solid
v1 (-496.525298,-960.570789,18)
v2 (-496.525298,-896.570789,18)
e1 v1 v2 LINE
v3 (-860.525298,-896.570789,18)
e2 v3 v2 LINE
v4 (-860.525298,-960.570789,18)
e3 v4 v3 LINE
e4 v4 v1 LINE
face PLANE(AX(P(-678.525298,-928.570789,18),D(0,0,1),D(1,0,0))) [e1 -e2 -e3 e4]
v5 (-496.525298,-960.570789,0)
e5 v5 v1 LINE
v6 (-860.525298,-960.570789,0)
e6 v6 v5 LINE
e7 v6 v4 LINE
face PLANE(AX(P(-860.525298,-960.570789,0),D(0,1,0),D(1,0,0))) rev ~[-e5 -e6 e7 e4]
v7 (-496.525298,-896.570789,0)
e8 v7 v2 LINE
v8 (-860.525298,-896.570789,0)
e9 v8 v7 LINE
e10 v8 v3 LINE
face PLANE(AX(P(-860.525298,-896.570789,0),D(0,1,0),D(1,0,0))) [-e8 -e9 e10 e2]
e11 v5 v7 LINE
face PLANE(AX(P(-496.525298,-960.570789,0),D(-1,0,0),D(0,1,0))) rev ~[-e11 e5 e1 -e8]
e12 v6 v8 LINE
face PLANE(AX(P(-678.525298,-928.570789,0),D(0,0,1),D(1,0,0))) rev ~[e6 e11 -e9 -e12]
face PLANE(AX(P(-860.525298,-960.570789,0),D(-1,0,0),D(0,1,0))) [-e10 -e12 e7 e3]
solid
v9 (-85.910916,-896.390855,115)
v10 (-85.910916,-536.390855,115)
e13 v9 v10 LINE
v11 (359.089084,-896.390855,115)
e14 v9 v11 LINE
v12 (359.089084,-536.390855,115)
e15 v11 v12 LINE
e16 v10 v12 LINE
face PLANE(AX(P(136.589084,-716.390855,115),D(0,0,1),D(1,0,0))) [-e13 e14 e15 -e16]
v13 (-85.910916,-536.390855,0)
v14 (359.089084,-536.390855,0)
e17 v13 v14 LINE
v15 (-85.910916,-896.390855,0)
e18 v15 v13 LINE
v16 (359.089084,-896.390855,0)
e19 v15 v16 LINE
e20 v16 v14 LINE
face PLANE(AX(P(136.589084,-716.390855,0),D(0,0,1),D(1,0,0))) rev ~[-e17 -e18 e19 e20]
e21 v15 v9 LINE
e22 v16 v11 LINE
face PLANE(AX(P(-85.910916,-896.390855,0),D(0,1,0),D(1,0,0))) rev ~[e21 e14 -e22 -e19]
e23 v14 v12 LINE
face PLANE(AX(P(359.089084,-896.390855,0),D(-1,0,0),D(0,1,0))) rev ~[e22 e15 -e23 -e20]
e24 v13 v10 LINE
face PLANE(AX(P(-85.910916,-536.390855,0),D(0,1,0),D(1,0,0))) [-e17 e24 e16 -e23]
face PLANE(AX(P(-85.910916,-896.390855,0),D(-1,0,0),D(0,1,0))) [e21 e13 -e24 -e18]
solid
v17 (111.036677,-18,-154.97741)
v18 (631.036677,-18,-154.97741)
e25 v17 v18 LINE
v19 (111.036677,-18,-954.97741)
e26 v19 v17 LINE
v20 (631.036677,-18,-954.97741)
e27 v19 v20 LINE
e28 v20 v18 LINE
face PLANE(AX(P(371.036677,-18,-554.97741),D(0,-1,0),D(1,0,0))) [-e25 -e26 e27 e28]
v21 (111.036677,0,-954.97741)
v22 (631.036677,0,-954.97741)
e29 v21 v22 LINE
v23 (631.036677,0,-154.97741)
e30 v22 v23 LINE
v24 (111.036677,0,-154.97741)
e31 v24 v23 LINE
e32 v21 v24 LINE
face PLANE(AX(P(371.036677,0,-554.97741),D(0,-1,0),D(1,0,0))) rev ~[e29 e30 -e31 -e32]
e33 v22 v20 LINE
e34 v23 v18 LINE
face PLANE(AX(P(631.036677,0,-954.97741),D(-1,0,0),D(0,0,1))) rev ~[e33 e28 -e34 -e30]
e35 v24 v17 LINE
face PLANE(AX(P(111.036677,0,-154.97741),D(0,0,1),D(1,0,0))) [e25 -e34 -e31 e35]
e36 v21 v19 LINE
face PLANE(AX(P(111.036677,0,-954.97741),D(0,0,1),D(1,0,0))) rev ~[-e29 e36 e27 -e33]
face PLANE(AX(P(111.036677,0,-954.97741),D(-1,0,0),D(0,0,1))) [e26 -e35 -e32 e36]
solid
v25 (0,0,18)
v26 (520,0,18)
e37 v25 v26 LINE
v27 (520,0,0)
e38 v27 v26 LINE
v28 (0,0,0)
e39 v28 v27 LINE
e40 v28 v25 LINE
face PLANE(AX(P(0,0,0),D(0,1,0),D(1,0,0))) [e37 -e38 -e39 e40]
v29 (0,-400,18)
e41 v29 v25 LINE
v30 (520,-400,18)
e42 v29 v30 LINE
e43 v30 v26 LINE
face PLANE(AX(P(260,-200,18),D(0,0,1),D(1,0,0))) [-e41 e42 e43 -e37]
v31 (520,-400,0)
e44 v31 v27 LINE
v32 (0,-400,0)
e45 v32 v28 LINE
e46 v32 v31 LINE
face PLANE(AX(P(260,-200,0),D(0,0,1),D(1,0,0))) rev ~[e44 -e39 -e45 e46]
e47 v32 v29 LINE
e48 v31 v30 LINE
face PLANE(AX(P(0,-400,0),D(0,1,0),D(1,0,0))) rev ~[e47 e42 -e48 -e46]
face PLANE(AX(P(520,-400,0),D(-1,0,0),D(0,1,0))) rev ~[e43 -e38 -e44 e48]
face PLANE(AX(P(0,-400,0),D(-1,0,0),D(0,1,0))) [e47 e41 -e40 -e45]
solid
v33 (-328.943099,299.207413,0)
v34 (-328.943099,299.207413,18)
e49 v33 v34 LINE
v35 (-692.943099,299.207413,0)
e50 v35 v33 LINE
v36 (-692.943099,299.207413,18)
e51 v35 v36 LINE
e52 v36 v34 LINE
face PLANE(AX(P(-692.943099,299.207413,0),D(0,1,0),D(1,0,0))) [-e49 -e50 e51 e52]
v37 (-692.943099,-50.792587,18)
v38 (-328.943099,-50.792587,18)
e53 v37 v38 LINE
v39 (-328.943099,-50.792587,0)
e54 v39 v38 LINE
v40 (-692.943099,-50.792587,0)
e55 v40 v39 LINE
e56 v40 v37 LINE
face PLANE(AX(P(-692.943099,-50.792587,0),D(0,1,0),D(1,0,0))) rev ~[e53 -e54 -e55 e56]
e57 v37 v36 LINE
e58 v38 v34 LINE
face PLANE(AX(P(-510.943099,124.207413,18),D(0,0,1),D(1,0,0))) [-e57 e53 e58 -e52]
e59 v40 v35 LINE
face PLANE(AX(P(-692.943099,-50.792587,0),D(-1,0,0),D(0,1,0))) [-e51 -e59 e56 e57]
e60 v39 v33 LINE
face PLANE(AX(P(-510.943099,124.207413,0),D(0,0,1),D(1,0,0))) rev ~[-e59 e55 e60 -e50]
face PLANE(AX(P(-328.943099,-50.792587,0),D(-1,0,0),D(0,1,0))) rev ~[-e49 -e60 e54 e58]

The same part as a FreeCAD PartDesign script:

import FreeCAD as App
import Part
import Sketcher
Q = App.Units.Quantity


def add_polygon(sketch, points):
    """Adds a closed chain of lines whose ends are joined by coincident constraints."""
    first, n = sketch.GeometryCount, len(points)
    for a, b in zip(points, points[1:] + points[:1]):
        sketch.addGeometry(Part.LineSegment(App.Vector(*a, 0), App.Vector(*b, 0)), False)
    for i in range(n):
        sketch.addConstraint(Sketcher.Constraint("Coincident", first + i, 2, first + (i + 1) % n, 1))

doc = App.newDocument("Part")
body = doc.addObject("PartDesign::Body", "Body")

sketch1 = body.newObject("Sketcher::SketchObject", "Sketch")
sketch1.AttachmentSupport = (doc.getObject("XY_Plane"), [""])
sketch1.MapMode = "FlatFace"
add_polygon(sketch1, [(0, 0), (0, -400), (520, -400), (520, 0)])
sketch1.addConstraint(Sketcher.Constraint("Vertical", 0))
sketch1.addConstraint(Sketcher.Constraint("Horizontal", 1))
sketch1.addConstraint(Sketcher.Constraint("Vertical", 2))
sketch1.addConstraint(Sketcher.Constraint("Horizontal", 3))
sketch1.addConstraint(Sketcher.Constraint("Coincident", 3, 2, -1, 1))
sketch1.addConstraint(Sketcher.Constraint("DistanceX", 1, 1, 1, 2, Q("520 mm")))
sketch1.addConstraint(Sketcher.Constraint("DistanceY", 0, 2, 0, 1, Q("400 mm")))
pad1 = body.newObject("PartDesign::Pad", "Pad")
pad1.Profile = sketch1
pad1.Length = 18
body2 = doc.addObject("PartDesign::Body", "Body001")

sketch2 = body2.newObject("Sketcher::SketchObject", "Sketch001")
sketch2.AttachmentSupport = (doc.getObject("XZ_Plane001"), [""])
sketch2.MapMode = "FlatFace"
add_polygon(sketch2, [(111.036677, -154.97741), (111.036677, -954.97741), (631.036677, -954.97741), (631.036677, -154.97741)])
sketch2.addConstraint(Sketcher.Constraint("Vertical", 0))
sketch2.addConstraint(Sketcher.Constraint("Horizontal", 1))
sketch2.addConstraint(Sketcher.Constraint("Vertical", 2))
sketch2.addConstraint(Sketcher.Constraint("Horizontal", 3))
sketch2.addConstraint(Sketcher.Constraint("DistanceX", 1, 1, 1, 2, Q("520 mm")))
sketch2.addConstraint(Sketcher.Constraint("DistanceY", 0, 2, 0, 1, Q("800 mm")))
sketch2.addConstraint(Sketcher.Constraint("DistanceY", 0, 2, -1, 1, Q("954.97741 mm")))
sketch2.addConstraint(Sketcher.Constraint("DistanceX", -1, 1, 0, 2, Q("111.036677 mm")))
pad2 = body2.newObject("PartDesign::Pad", "Pad001")
pad2.Profile = sketch2
pad2.Length = 18
body3 = doc.addObject("PartDesign::Body", "Body002")

sketch3 = body3.newObject("Sketcher::SketchObject", "Sketch002")
sketch3.AttachmentSupport = (doc.getObject("XY_Plane002"), [""])
sketch3.MapMode = "FlatFace"
add_polygon(sketch3, [(-692.943099, 299.207413), (-692.943099, -50.792587), (-328.943099, -50.792587), (-328.943099, 299.207413)])
sketch3.addConstraint(Sketcher.Constraint("Vertical", 0))
sketch3.addConstraint(Sketcher.Constraint("Horizontal", 1))
sketch3.addConstraint(Sketcher.Constraint("Vertical", 2))
sketch3.addConstraint(Sketcher.Constraint("Horizontal", 3))
sketch3.addConstraint(Sketcher.Constraint("DistanceX", 1, 1, 1, 2, Q("364 mm")))
sketch3.addConstraint(Sketcher.Constraint("DistanceY", 0, 2, 0, 1, Q("350 mm")))
sketch3.addConstraint(Sketcher.Constraint("DistanceX", 0, 2, -1, 1, Q("692.943099 mm")))
sketch3.addConstraint(Sketcher.Constraint("DistanceY", 0, 2, -1, 1, Q("50.792587 mm")))
pad3 = body3.newObject("PartDesign::Pad", "Pad002")
pad3.Profile = sketch3
pad3.Length = 18
body4 = doc.addObject("PartDesign::Body", "Body003")

sketch4 = body4.newObject("Sketcher::SketchObject", "Sketch003")
sketch4.AttachmentSupport = (doc.getObject("XY_Plane003"), [""])
sketch4.MapMode = "FlatFace"
add_polygon(sketch4, [(-860.525298, -896.570789), (-860.525298, -960.570789), (-496.525298, -960.570789), (-496.525298, -896.570789)])
sketch4.addConstraint(Sketcher.Constraint("Vertical", 0))
sketch4.addConstraint(Sketcher.Constraint("Horizontal", 1))
sketch4.addConstraint(Sketcher.Constraint("Vertical", 2))
sketch4.addConstraint(Sketcher.Constraint("Horizontal", 3))
sketch4.addConstraint(Sketcher.Constraint("DistanceX", 1, 1, 1, 2, Q("364 mm")))
sketch4.addConstraint(Sketcher.Constraint("DistanceY", 0, 2, 0, 1, Q("64 mm")))
sketch4.addConstraint(Sketcher.Constraint("DistanceX", 0, 2, -1, 1, Q("860.525298 mm")))
sketch4.addConstraint(Sketcher.Constraint("DistanceY", 0, 2, -1, 1, Q("960.570789 mm")))
pad4 = body4.newObject("PartDesign::Pad", "Pad003")
pad4.Profile = sketch4
pad4.Length = 18
body5 = doc.addObject("PartDesign::Body", "Body004")

sketch5 = body5.newObject("Sketcher::SketchObject", "Sketch004")
sketch5.AttachmentSupport = (doc.getObject("XY_Plane004"), [""])
sketch5.MapMode = "FlatFace"
add_polygon(sketch5, [(-85.910916, -536.390855), (-85.910916, -896.390855), (359.089084, -896.390855), (359.089084, -536.390855)])
sketch5.addConstraint(Sketcher.Constraint("Vertical", 0))
sketch5.addConstraint(Sketcher.Constraint("Horizontal", 1))
sketch5.addConstraint(Sketcher.Constraint("Vertical", 2))
sketch5.addConstraint(Sketcher.Constraint("Horizontal", 3))
sketch5.addConstraint(Sketcher.Constraint("DistanceX", 1, 1, 1, 2, Q("445 mm")))
sketch5.addConstraint(Sketcher.Constraint("DistanceY", 0, 2, 0, 1, Q("360 mm")))
sketch5.addConstraint(Sketcher.Constraint("DistanceX", 0, 2, -1, 1, Q("85.910916 mm")))
sketch5.addConstraint(Sketcher.Constraint("DistanceY", 0, 2, -1, 1, Q("896.390855 mm")))
pad5 = body5.newObject("PartDesign::Pad", "Pad004")
pad5.Profile = sketch5
pad5.Length = 115

doc.recompute()
